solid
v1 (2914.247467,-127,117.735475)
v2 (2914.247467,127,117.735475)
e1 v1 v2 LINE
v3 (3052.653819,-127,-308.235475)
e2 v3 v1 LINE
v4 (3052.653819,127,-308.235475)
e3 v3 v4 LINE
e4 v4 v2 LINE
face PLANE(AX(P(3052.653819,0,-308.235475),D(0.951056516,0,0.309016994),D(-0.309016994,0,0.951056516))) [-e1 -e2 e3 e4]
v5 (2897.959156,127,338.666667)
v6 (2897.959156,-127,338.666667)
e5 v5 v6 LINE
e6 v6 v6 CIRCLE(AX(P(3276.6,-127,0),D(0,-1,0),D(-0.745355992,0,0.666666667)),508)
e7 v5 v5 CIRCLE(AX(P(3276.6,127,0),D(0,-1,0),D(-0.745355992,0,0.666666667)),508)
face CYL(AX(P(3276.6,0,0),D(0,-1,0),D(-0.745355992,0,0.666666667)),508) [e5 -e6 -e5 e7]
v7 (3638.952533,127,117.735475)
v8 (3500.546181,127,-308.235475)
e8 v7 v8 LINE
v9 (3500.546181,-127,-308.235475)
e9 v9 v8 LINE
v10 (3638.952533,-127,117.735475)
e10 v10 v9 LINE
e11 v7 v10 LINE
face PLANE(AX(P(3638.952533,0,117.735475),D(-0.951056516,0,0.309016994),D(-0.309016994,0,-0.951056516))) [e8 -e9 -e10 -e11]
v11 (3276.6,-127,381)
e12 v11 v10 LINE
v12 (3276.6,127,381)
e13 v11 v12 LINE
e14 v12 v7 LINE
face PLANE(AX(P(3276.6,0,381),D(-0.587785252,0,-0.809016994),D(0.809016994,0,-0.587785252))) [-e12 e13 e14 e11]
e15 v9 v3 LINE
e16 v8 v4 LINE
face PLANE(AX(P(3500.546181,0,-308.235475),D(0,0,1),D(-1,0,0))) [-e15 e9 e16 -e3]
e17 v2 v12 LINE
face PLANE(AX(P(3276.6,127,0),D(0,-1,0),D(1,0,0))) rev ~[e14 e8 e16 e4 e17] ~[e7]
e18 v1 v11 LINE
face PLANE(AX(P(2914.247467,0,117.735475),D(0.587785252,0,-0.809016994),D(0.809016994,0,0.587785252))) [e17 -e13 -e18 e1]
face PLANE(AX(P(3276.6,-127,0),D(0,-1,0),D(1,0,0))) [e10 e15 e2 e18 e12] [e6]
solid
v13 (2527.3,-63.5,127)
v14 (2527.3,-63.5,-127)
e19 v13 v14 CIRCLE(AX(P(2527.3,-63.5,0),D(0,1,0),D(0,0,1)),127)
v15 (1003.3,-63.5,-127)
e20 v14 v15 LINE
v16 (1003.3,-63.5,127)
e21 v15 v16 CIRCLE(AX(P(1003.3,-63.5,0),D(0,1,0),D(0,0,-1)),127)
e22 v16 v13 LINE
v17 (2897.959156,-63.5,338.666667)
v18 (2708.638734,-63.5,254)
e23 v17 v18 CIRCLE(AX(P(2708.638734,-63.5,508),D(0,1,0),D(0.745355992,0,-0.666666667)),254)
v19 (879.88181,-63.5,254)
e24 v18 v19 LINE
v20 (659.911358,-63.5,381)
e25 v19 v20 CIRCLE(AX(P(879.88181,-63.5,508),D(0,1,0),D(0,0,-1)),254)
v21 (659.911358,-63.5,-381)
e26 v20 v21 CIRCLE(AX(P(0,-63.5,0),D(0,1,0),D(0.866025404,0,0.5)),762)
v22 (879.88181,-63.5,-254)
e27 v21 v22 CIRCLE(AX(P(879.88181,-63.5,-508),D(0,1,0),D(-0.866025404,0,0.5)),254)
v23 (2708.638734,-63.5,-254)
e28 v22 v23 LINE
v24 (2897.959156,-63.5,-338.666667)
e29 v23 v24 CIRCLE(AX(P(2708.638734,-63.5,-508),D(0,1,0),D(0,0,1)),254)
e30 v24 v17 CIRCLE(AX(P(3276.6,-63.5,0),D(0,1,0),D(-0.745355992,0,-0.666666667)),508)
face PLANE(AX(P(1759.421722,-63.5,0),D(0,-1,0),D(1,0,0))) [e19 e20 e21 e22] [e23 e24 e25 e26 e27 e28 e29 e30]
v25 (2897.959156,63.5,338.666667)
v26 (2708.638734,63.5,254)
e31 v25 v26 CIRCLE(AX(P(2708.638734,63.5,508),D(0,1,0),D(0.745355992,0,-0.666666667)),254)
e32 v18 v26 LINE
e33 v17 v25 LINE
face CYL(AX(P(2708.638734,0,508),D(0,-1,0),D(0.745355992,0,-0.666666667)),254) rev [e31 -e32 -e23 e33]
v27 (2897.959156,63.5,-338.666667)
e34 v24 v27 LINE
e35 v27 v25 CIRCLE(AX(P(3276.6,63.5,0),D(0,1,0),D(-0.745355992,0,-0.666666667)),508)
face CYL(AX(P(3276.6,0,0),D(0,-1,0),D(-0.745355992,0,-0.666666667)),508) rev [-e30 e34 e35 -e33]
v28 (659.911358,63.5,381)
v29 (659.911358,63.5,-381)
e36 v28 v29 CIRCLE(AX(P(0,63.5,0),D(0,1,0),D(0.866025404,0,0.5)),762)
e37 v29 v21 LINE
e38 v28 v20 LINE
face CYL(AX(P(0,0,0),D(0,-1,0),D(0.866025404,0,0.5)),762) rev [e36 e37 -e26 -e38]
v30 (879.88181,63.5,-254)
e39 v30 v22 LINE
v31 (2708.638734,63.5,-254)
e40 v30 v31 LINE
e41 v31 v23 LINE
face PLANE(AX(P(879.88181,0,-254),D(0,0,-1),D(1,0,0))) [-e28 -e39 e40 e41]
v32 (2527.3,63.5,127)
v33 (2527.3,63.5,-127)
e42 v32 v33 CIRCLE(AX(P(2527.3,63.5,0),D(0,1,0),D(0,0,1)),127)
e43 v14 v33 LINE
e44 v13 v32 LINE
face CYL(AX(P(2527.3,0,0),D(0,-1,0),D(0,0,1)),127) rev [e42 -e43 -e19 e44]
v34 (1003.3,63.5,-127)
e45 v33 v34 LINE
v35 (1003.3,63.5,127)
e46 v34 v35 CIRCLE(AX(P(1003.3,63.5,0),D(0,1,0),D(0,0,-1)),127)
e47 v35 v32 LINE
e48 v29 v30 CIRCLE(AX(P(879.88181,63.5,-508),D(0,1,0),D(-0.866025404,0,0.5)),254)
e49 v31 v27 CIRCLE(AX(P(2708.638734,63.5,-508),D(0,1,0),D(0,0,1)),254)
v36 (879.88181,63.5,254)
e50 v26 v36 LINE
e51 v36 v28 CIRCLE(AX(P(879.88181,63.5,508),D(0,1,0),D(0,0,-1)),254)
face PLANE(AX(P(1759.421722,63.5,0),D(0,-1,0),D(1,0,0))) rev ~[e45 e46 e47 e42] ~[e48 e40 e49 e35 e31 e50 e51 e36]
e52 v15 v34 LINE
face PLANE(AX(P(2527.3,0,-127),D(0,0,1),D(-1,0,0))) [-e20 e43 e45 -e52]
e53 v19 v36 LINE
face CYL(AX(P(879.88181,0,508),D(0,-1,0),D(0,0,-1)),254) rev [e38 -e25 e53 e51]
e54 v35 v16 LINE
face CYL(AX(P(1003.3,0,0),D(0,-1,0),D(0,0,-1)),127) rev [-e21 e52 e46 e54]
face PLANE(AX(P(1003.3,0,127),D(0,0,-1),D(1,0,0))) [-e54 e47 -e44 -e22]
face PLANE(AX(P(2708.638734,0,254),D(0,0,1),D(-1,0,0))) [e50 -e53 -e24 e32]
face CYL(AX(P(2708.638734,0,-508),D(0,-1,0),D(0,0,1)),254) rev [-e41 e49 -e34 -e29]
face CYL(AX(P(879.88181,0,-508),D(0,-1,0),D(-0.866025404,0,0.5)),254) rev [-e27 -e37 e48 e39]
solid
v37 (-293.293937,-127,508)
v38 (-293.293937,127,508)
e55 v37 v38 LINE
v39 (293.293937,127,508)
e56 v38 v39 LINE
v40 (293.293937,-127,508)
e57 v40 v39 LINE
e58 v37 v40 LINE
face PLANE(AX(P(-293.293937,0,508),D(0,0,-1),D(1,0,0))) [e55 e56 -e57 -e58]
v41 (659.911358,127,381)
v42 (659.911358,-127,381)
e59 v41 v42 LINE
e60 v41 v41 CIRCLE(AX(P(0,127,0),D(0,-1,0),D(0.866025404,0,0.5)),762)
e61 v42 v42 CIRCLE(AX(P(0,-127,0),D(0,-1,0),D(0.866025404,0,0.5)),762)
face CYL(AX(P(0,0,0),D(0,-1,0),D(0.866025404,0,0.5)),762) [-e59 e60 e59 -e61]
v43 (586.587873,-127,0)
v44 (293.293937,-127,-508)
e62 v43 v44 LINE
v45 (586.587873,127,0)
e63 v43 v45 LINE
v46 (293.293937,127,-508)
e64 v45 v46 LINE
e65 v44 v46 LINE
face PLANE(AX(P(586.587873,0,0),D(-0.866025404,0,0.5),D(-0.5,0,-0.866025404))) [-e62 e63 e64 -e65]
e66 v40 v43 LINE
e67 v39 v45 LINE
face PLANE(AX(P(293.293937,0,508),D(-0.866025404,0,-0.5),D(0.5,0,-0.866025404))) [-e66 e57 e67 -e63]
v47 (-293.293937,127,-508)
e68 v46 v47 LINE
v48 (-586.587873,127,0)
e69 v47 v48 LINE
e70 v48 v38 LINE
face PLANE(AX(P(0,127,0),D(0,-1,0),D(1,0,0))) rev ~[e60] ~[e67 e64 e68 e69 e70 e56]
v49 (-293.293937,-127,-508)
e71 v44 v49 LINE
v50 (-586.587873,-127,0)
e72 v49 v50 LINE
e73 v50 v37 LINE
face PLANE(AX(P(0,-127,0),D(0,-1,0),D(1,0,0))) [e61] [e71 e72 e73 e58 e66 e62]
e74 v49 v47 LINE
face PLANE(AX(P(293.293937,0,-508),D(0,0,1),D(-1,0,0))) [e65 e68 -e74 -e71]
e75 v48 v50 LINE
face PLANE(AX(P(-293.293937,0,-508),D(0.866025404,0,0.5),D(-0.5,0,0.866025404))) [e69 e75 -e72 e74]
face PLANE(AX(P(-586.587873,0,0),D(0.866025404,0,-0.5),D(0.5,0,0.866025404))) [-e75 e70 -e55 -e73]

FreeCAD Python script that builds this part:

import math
import FreeCAD as App
import Part
import Sketcher
from FreeCAD import Vector
Q = App.Units.Quantity


def add_polygon(sketch, points):
    """Adds a closed chain of lines whose ends are joined by coincident constraints."""
    first, n = sketch.GeometryCount, len(points)
    for a, b in zip(points, points[1:] + points[:1]):
        sketch.addGeometry(Part.LineSegment(App.Vector(*a, 0), App.Vector(*b, 0)), False)
    for i in range(n):
        sketch.addConstraint(Sketcher.Constraint("Coincident", first + i, 2, first + (i + 1) % n, 1))

doc = App.newDocument("Part")
body = doc.addObject("PartDesign::Body", "Body")

sketch1 = body.newObject("Sketcher::SketchObject", "Sketch")
sketch1.AttachmentSupport = (doc.getObject("XZ_Plane"), [""])
sketch1.MapMode = "FlatFace"
sketch1.addGeometry(Part.Circle(Vector(0, 0, 0), Vector(0, 0, 1), 762), False)
add_polygon(sketch1, [(-293, -508), (-587, 0), (-293, 508), (293, 508), (587, 0), (293, -508)])
sketch1.addConstraint(Sketcher.Constraint("Horizontal", 3))
sketch1.addConstraint(Sketcher.Constraint("Horizontal", 6))
sketch1.addConstraint(Sketcher.Constraint("Coincident", 0, 3, -1, 1))
sketch1.addConstraint(Sketcher.Constraint("Symmetric", 1, 2, 4, 2, -1, 1))
sketch1.addConstraint(Sketcher.Constraint("Symmetric", 2, 2, 5, 2, -1, 1))
sketch1.addConstraint(Sketcher.Constraint("PointOnObject", 1, 2, -1))
sketch1.addConstraint(Sketcher.Constraint("Parallel", 1, 4))
sketch1.addConstraint(Sketcher.Constraint("Vertical", 3, 2, 5, 2))
sketch1.addConstraint(Sketcher.Constraint("Diameter", 0, Q("60 in")))
sketch1.addConstraint(Sketcher.Constraint("DistanceY", -1, 1, 2, 2, Q("20 in")))
sketch1.addConstraint(Sketcher.Constraint("Angle", 1, Q("120 deg")))
sketch1.addConstraint(Sketcher.Constraint("DistanceX", 3, 1, 3, 2, 586.587873))
pad1 = body.newObject("PartDesign::Pad", "Pad")
pad1.Profile = sketch1
pad1.Length = Q("10 in")
pad1.Midplane = True
body2 = doc.addObject("PartDesign::Body", "Body001")

sketch2 = body2.newObject("Sketcher::SketchObject", "Sketch001")
sketch2.AttachmentSupport = (doc.getObject("XZ_Plane001"), [""])
sketch2.MapMode = "FlatFace"
sketch2.addGeometry(Part.Circle(Vector(3277, 0, 0), Vector(0, 0, 1), 508), False)
add_polygon(sketch2, [(3277, 381), (3639, 118), (3501, -308), (3053, -308), (2914, 118)])
sketch2.addConstraint(Sketcher.Constraint("Horizontal", 3))
sketch2.addConstraint(Sketcher.Constraint("PointOnObject", 0, 3, -1))
sketch2.addConstraint(Sketcher.Constraint("Horizontal", 1, 2, 4, 2))
sketch2.addConstraint(Sketcher.Constraint("Vertical", 0, 3, 5, 2))
sketch2.addConstraint(Sketcher.Constraint("Equal", 1, 2))
sketch2.addConstraint(Sketcher.Constraint("Equal", 2, 4))
sketch2.addConstraint(Sketcher.Constraint("Equal", 4, 5))
sketch2.addConstraint(Sketcher.Constraint("Diameter", 0, Q("40 in")))
sketch2.addConstraint(Sketcher.Constraint("DistanceX", -1, 1, 0, 3, Q("129 in")))
sketch2.addConstraint(Sketcher.Constraint("DistanceY", -1, 1, 5, 2, Q("15 in")))
sketch2.addConstraint(Sketcher.Constraint("Angle", 1, Q("-36 deg")))
sketch2.addConstraint(Sketcher.Constraint("Angle", 2, Q("-108 deg")))
sketch2.addConstraint(Sketcher.Constraint("DistanceX", 3, 2, 3, 1, 447.892362))
pad2 = body2.newObject("PartDesign::Pad", "Pad001")
pad2.Profile = sketch2
pad2.Length = Q("10 in")
pad2.Midplane = True
body3 = doc.addObject("PartDesign::Body", "Body002")

sketch3 = body3.newObject("Sketcher::SketchObject", "Sketch002")
sketch3.AttachmentSupport = (doc.getObject("XZ_Plane002"), [""])
sketch3.MapMode = "FlatFace"
sketch3.addGeometry(Part.ArcOfCircle(Part.Circle(Vector(880, 508, 0), Vector(0, 0, 1), 254), math.radians(-150), math.radians(-90)), False)
sketch3.addGeometry(Part.ArcOfCircle(Part.Circle(Vector(0, 0, 0), Vector(0, 0, 1), 762), math.radians(-30), math.radians(30)), False)
sketch3.addGeometry(Part.ArcOfCircle(Part.Circle(Vector(880, -508, 0), Vector(0, 0, 1), 254), math.radians(90), math.radians(150)), False)
sketch3.addGeometry(Part.LineSegment(Vector(880, -254, 0), Vector(2709, -254, 0)), False)
sketch3.addGeometry(Part.ArcOfCircle(Part.Circle(Vector(2709, -508, 0), Vector(0, 0, 1), 254), math.radians(42), math.radians(90)), False)
sketch3.addGeometry(Part.ArcOfCircle(Part.Circle(Vector(3277, 0, 0), Vector(0, 0, 1), 508), math.radians(138), math.radians(222)), False)
sketch3.addGeometry(Part.ArcOfCircle(Part.Circle(Vector(2709, 508, 0), Vector(0, 0, 1), 254), math.radians(-90), math.radians(-42)), False)
sketch3.addGeometry(Part.LineSegment(Vector(2709, 254, 0), Vector(880, 254, 0)), False)
sketch3.addGeometry(Part.ArcOfCircle(Part.Circle(Vector(1003, 0, 0), Vector(0, 0, 1), 127), math.radians(90), math.radians(270)), False)
sketch3.addGeometry(Part.LineSegment(Vector(1003, 127, 0), Vector(2527, 127, 0)), False)
sketch3.addGeometry(Part.ArcOfCircle(Part.Circle(Vector(2527, 0, 0), Vector(0, 0, 1), 127), math.radians(-90), math.radians(90)), False)
sketch3.addGeometry(Part.LineSegment(Vector(2527, -127, 0), Vector(1003, -127, 0)), False)
sketch3.addConstraint(Sketcher.Constraint("Tangent", 0, 1, 1, 2))
sketch3.addConstraint(Sketcher.Constraint("Tangent", 1, 1, 2, 2))
sketch3.addConstraint(Sketcher.Constraint("Tangent", 2, 1, 3, 1))
sketch3.addConstraint(Sketcher.Constraint("Tangent", 3, 2, 4, 2))
sketch3.addConstraint(Sketcher.Constraint("Tangent", 4, 1, 5, 2))
sketch3.addConstraint(Sketcher.Constraint("Tangent", 5, 1, 6, 2))
sketch3.addConstraint(Sketcher.Constraint("Tangent", 6, 1, 7, 1))
sketch3.addConstraint(Sketcher.Constraint("Tangent", 7, 2, 0, 2))
sketch3.addConstraint(Sketcher.Constraint("Tangent", 8, 1, 9, 1))
sketch3.addConstraint(Sketcher.Constraint("Tangent", 9, 2, 10, 2))
sketch3.addConstraint(Sketcher.Constraint("Tangent", 10, 1, 11, 1))
sketch3.addConstraint(Sketcher.Constraint("Tangent", 11, 2, 8, 2))
sketch3.addConstraint(Sketcher.Constraint("Horizontal", 3))
sketch3.addConstraint(Sketcher.Constraint("Horizontal", 7))
sketch3.addConstraint(Sketcher.Constraint("Horizontal", 9))
sketch3.addConstraint(Sketcher.Constraint("Horizontal", 11))
sketch3.addConstraint(Sketcher.Constraint("Coincident", 1, 3, -1, 1))
sketch3.addConstraint(Sketcher.Constraint("Equal", 0, 2))
sketch3.addConstraint(Sketcher.Constraint("Equal", 2, 4))
sketch3.addConstraint(Sketcher.Constraint("Equal", 4, 6))
sketch3.addConstraint(Sketcher.Constraint("Symmetric", 4, 3, 6, 3, -1))
sketch3.addConstraint(Sketcher.Constraint("PointOnObject", 8, 3, -1))
sketch3.addConstraint(Sketcher.Constraint("Radius", 0, Q("10 in")))
sketch3.addConstraint(Sketcher.Constraint("Radius", 1, Q("30 in")))
sketch3.addConstraint(Sketcher.Constraint("Radius", 5, Q("20 in")))
sketch3.addConstraint(Sketcher.Constraint("Radius", 8, Q("5 in")))
sketch3.addConstraint(Sketcher.Constraint("DistanceX", 9, 1, 9, 2, Q("60 in")))
sketch3.addConstraint(Sketcher.Constraint("DistanceY", -1, 1, 0, 3, Q("20 in")))
sketch3.addConstraint(Sketcher.Constraint("DistanceX", -1, 1, 5, 3, Q("129 in")))
sketch3.addConstraint(Sketcher.Constraint("DistanceX", -1, 1, 8, 3, Q("39.5 in")))
pad3 = body3.newObject("PartDesign::Pad", "Pad002")
pad3.Profile = sketch3
pad3.Length = Q("5 in")
pad3.Midplane = True

doc.recompute()
